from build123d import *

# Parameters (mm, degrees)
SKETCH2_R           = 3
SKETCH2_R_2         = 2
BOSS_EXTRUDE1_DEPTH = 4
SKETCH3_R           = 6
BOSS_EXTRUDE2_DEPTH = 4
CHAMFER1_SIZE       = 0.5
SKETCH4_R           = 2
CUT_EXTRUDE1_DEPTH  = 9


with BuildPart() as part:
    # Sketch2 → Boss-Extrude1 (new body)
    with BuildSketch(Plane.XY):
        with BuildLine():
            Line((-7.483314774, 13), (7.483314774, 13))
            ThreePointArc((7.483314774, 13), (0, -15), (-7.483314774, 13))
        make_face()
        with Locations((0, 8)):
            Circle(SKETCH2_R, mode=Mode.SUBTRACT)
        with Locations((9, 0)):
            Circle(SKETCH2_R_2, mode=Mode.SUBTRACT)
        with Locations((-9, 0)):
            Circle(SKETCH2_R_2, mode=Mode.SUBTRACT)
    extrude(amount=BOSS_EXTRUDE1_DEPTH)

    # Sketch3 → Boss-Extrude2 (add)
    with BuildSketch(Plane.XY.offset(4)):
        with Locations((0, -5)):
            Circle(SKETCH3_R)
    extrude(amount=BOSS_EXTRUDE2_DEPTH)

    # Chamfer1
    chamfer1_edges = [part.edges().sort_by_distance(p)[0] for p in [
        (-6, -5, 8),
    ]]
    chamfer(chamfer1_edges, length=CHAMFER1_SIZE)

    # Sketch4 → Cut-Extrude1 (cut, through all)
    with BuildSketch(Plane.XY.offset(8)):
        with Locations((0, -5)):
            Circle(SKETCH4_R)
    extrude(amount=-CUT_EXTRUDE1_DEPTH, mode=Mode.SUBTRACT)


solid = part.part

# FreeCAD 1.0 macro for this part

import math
import FreeCAD as App
import Part
import Sketcher

V = App.Vector
Q = App.Units.Quantity


def edges_at(feature, points):
    """Names of the edges that pass closest to the given points."""
    edges = feature.Shape.Edges
    near = lambda p: min(range(len(edges)), key=lambda i: edges[i].distToShape(Part.Vertex(*p))[0])
    return sorted({f"Edge{near(p) + 1}" for p in points})

doc = App.newDocument("Part")
params = doc.addObject("Spreadsheet::Sheet", "Params")
for row, (alias, value) in enumerate([
    ("sketch1_diameter", "4 mm"),
    ("sketch1_diameter2", "6 mm"),
    ("sketch1_radius", "15 mm"),
    ("pad1_length", "4 mm"),
    ("sketch2_diameter", "12 mm"),
    ("pad2_length", "4 mm"),
    ("chamfer_size", "0.5 mm"),
    ("sketch3_diameter", "4 mm"),
], start=1):
    params.set(f"A{row}", alias)
    params.set(f"B{row}", "=" + value)
    params.setAlias(f"B{row}", alias)

body = doc.addObject("PartDesign::Body", "Body")

# Sketch on XY plane
sketch1 = body.newObject("Sketcher::SketchObject", "Sketch")
sketch1.AttachmentSupport = (doc.getObject("XY_Plane"), [""])
sketch1.MapMode = "FlatFace"
sketch1.addGeometry([
    Part.LineSegment(V(7.5, 13, 0), V(-7.5, 13, 0)),  # 0
    Part.ArcOfCircle(Part.Circle(V(0, 0, 0), V(0, 0, 1), 15), math.radians(120), math.radians(420)),  # 1
    Part.Circle(V(9, 0, 0), V(0, 0, 1), 2),  # 2
    Part.Circle(V(-9, 0, 0), V(0, 0, 1), 2),  # 3
    Part.Circle(V(0, 8, 0), V(0, 0, 1), 3),  # 4
], False)
sketch1.addConstraint([
    Sketcher.Constraint("Coincident", 0, 1, 1, 2),
    Sketcher.Constraint("Coincident", 1, 1, 0, 2),
    Sketcher.Constraint("Horizontal", 0),
    Sketcher.Constraint("Coincident", 1, 3, -1, 1),
    Sketcher.Constraint("Equal", 2, 3),
    Sketcher.Constraint("Symmetric", 2, 3, 3, 3, -1, 1),
    Sketcher.Constraint("PointOnObject", 2, 3, -1),
    Sketcher.Constraint("PointOnObject", 4, 3, -2),
    Sketcher.Constraint("Diameter", 2, Q("4 mm")),
    Sketcher.Constraint("Diameter", 4, Q("6 mm")),
    Sketcher.Constraint("Radius", 1, Q("15 mm")),
    Sketcher.Constraint("DistanceX", -1, 1, 2, 3, Q("9 mm")),
    Sketcher.Constraint("DistanceY", -1, 1, 4, 3, Q("8 mm")),
    Sketcher.Constraint("DistanceY", -1, 1, 0, 1, Q("13 mm")),
])
sketch1.setExpression("Constraints[8]", "Params.sketch1_diameter")
sketch1.setExpression("Constraints[9]", "Params.sketch1_diameter2")
sketch1.setExpression("Constraints[10]", "Params.sketch1_radius")
pad1 = body.newObject("PartDesign::Pad", "Pad")
pad1.Profile = sketch1
pad1.setExpression("Length", "Params.pad1_length")

# Sketch on XY plane
sketch2 = body.newObject("Sketcher::SketchObject", "Sketch001")
sketch2.AttachmentSupport = (doc.getObject("XY_Plane"), [""])
sketch2.MapMode = "FlatFace"
sketch2.AttachmentOffset = App.Placement(V(0, 0, 4), App.Rotation())
sketch2.addGeometry(Part.Circle(V(0, -5, 0), V(0, 0, 1), 6), False)
sketch2.addConstraint([
    Sketcher.Constraint("PointOnObject", 0, 3, -2),
    Sketcher.Constraint("Diameter", 0, Q("12 mm")),
    Sketcher.Constraint("DistanceY", 0, 3, -1, 1, Q("5 mm")),
])
sketch2.setExpression("Constraints[1]", "Params.sketch2_diameter")
pad2 = body.newObject("PartDesign::Pad", "Pad001")
pad2.Profile = sketch2
pad2.setExpression("Length", "Params.pad2_length")
doc.recompute()

chamfer = body.newObject("PartDesign::Chamfer", "Chamfer")
chamfer.Base = (pad2, edges_at(pad2, [(-6, -5, 8)]))
chamfer.setExpression("Size", "Params.chamfer_size")

# Sketch on XY plane
sketch3 = body.newObject("Sketcher::SketchObject", "Sketch002")
sketch3.AttachmentSupport = (doc.getObject("XY_Plane"), [""])
sketch3.MapMode = "FlatFace"
sketch3.AttachmentOffset = App.Placement(V(0, 0, 8), App.Rotation())
sketch3.addGeometry(Part.Circle(V(0, -5, 0), V(0, 0, 1), 2), False)
sketch3.addConstraint([
    Sketcher.Constraint("PointOnObject", 0, 3, -2),
    Sketcher.Constraint("Diameter", 0, Q("4 mm")),
    Sketcher.Constraint("DistanceY", 0, 3, -1, 1, Q("5 mm")),
])
sketch3.setExpression("Constraints[1]", "Params.sketch3_diameter")
pocket1 = body.newObject("PartDesign::Pocket", "Pocket")
pocket1.Profile = sketch3
pocket1.Type = "ThroughAll"

doc.recompute()
